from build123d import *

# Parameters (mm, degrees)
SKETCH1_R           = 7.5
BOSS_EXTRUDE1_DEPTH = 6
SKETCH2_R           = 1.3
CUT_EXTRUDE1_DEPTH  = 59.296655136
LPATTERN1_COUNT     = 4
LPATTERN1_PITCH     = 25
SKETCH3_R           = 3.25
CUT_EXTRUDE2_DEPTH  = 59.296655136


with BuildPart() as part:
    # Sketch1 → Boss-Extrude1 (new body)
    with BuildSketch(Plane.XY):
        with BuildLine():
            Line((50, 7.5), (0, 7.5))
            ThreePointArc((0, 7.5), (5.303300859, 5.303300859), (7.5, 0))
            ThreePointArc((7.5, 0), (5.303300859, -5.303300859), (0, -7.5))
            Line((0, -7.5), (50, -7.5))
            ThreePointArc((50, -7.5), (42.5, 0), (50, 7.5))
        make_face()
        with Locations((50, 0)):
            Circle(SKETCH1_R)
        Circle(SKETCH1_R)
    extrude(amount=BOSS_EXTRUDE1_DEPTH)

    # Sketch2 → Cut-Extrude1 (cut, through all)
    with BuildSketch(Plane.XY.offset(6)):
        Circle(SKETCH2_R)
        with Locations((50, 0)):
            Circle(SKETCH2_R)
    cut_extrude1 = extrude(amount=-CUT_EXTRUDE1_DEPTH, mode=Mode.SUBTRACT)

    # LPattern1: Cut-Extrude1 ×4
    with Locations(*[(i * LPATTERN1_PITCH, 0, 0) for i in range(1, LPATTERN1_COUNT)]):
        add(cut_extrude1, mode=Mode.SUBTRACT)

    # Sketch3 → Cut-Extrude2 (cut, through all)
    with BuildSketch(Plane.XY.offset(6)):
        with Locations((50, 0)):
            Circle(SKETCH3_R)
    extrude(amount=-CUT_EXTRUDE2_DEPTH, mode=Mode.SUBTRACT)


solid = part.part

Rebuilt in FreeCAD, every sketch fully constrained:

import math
import FreeCAD as App
import Part
import Sketcher
from FreeCAD import Vector

doc = App.newDocument("Part")
body = doc.addObject("PartDesign::Body", "Body")

sketch1 = body.newObject("Sketcher::SketchObject", "Sketch")
sketch1.AttachmentSupport = (doc.getObject("XY_Plane"), [""])
sketch1.MapMode = "FlatFace"
sketch1.addGeometry([
    Part.LineSegment(Vector(50, 7.5, 0), Vector(0, 7.5, 0)),
    Part.ArcOfCircle(Part.Circle(Vector(0, 0, 0), Vector(0, 0, 1), 7.5), math.radians(90), math.radians(270)),
    Part.LineSegment(Vector(0, -7.5, 0), Vector(50, -7.5, 0)),
    Part.ArcOfCircle(Part.Circle(Vector(50, 0, 0), Vector(0, 0, 1), 7.5), math.radians(-90), math.radians(90)),
], False)
sketch1.addConstraint([
    Sketcher.Constraint("Tangent", 0, 2, 1, 1),
    Sketcher.Constraint("Tangent", 1, 2, 2, 1),
    Sketcher.Constraint("Tangent", 2, 2, 3, 1),
    Sketcher.Constraint("Tangent", 3, 2, 0, 1),
    Sketcher.Constraint("Horizontal", 0),
    Sketcher.Constraint("Horizontal", 2),
    Sketcher.Constraint("Coincident", 1, 3, -1, 1),
    Sketcher.Constraint("Radius", 1, 7.5),
    Sketcher.Constraint("DistanceX", 0, 2, 0, 1, 50.0),
])
pad1 = body.newObject("PartDesign::Pad", "Pad")
pad1.Profile = sketch1
pad1.Length = 6

sketch2 = body.newObject("Sketcher::SketchObject", "Sketch001")
sketch2.AttachmentSupport = (doc.getObject("XY_Plane"), [""])
sketch2.MapMode = "FlatFace"
sketch2.AttachmentOffset = App.Placement(Vector(0, 0, 6), App.Rotation())
sketch2.addGeometry([
    Part.Circle(Vector(0, 0, 0), Vector(0, 0, 1), 1.3),
    Part.Circle(Vector(50, 0, 0), Vector(0, 0, 1), 1.3),
], False)
sketch2.addConstraint([
    Sketcher.Constraint("Coincident", 0, 3, -1, 1),
    Sketcher.Constraint("Equal", 0, 1),
    Sketcher.Constraint("PointOnObject", 1, 3, -1),
    Sketcher.Constraint("Diameter", 0, 2.6),
    Sketcher.Constraint("DistanceX", -1, 1, 1, 3, 50.0),
])
pocket1 = body.newObject("PartDesign::Pocket", "Pocket")
pocket1.Profile = sketch2
pocket1.Type = "ThroughAll"
doc.recompute()

linearpattern = body.newObject("PartDesign::LinearPattern", "LinearPattern")
linearpattern.Originals = [pocket1]
linearpattern.Direction = (doc.getObject("X_Axis"), [""])
linearpattern.Mode = "offset"
linearpattern.Offset = 25
linearpattern.Occurrences = 4
body.Tip = linearpattern

sketch3 = body.newObject("Sketcher::SketchObject", "Sketch002")
sketch3.AttachmentSupport = (doc.getObject("XY_Plane"), [""])
sketch3.MapMode = "FlatFace"
sketch3.AttachmentOffset = App.Placement(Vector(0, 0, 6), App.Rotation())
sketch3.addGeometry(Part.Circle(Vector(50, 0, 0), Vector(0, 0, 1), 3.25), False)
sketch3.addConstraint([
    Sketcher.Constraint("PointOnObject", 0, 3, -1),
    Sketcher.Constraint("Diameter", 0, 6.5),
    Sketcher.Constraint("DistanceX", -1, 1, 0, 3, 50.0),
])
pocket2 = body.newObject("PartDesign::Pocket", "Pocket001")
pocket2.Profile = sketch3
pocket2.Type = "ThroughAll"

doc.recompute()
